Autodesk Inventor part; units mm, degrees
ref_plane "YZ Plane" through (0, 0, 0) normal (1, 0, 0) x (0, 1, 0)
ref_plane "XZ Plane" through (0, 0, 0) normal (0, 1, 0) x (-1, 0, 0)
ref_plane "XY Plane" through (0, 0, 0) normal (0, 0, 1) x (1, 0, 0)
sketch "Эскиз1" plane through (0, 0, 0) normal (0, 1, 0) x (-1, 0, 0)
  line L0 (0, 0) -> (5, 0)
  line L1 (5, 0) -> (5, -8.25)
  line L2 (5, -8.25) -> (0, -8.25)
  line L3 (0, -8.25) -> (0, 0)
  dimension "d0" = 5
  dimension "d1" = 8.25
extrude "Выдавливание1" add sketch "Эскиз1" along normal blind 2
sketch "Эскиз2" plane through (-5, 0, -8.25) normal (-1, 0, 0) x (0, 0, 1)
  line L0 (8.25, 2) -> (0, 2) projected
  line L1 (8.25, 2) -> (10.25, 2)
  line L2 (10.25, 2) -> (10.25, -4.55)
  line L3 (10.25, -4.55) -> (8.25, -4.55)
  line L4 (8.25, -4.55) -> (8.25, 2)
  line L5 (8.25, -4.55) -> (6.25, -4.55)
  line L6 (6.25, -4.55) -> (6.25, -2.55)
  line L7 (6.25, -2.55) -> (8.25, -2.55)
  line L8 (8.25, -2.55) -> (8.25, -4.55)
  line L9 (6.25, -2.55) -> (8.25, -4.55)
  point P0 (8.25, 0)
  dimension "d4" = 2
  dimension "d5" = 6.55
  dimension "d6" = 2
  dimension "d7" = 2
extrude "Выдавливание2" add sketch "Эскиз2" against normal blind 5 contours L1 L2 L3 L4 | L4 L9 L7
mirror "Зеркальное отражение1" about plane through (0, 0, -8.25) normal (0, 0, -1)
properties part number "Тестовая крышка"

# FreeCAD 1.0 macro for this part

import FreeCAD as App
import Part
import Sketcher


def add_polygon(sketch, points):
    """Adds a closed chain of lines whose ends are joined by coincident constraints."""
    first, n = sketch.GeometryCount, len(points)
    for a, b in zip(points, points[1:] + points[:1]):
        sketch.addGeometry(Part.LineSegment(App.Vector(*a, 0), App.Vector(*b, 0)), False)
    for i in range(n):
        sketch.addConstraint(Sketcher.Constraint("Coincident", first + i, 2, first + (i + 1) % n, 1))

doc = App.newDocument("Part")
body = doc.addObject("PartDesign::Body", "Body")

# Sketch on XZ plane
sketch1 = body.newObject("Sketcher::SketchObject", "Sketch")
sketch1.AttachmentSupport = (doc.getObject("XZ_Plane"), [""])
sketch1.MapMode = "FlatFace"
add_polygon(sketch1, [(-5, 0), (0, 0), (0, -8.25), (-5, -8.25)])  # lines 0-3
sketch1.addConstraint(Sketcher.Constraint("Horizontal", 0))
sketch1.addConstraint(Sketcher.Constraint("Vertical", 1))
sketch1.addConstraint(Sketcher.Constraint("Horizontal", 2))
sketch1.addConstraint(Sketcher.Constraint("Vertical", 3))
sketch1.addConstraint(Sketcher.Constraint("Coincident", 0, 2, -1, 1))
sketch1.addConstraint(Sketcher.Constraint("DistanceX", 0, 1, 0, 2, 5.0))
sketch1.addConstraint(Sketcher.Constraint("DistanceY", 1, 2, 1, 1, 8.25))
pad1 = body.newObject("PartDesign::Pad", "Pad")
pad1.Profile = sketch1
pad1.Length = 2
pad1.Reversed = True

# Sketch on YZ plane
sketch2 = body.newObject("Sketcher::SketchObject", "Sketch001")
sketch2.AttachmentSupport = (doc.getObject("YZ_Plane"), [""])
sketch2.MapMode = "FlatFace"
sketch2.AttachmentOffset = App.Placement(App.Vector(0, 0, -5), App.Rotation())
add_polygon(sketch2, [(2, 2), (2, 0), (-2.55, 0), (-2.55, -2), (-4.55, 0), (-4.55, 2)])  # lines 0-5
sketch2.addConstraint(Sketcher.Constraint("Vertical", 0))
sketch2.addConstraint(Sketcher.Constraint("Horizontal", 1))
sketch2.addConstraint(Sketcher.Constraint("Vertical", 2))
sketch2.addConstraint(Sketcher.Constraint("Vertical", 4))
sketch2.addConstraint(Sketcher.Constraint("Horizontal", 5))
sketch2.addConstraint(Sketcher.Constraint("PointOnObject", 0, 2, -1))
sketch2.addConstraint(Sketcher.Constraint("PointOnObject", 3, 2, -1))
sketch2.addConstraint(Sketcher.Constraint("Equal", 0, 2))
sketch2.addConstraint(Sketcher.Constraint("DistanceY", 0, 2, 0, 1, 2.0))
sketch2.addConstraint(Sketcher.Constraint("DistanceX", -1, 1, 0, 2, 2.0))
sketch2.addConstraint(Sketcher.Constraint("DistanceX", 3, 2, 1, 2, 2.0))
sketch2.addConstraint(Sketcher.Constraint("DistanceX", 5, 1, 5, 2, 6.55))
pad2 = body.newObject("PartDesign::Pad", "Pad001")
pad2.Profile = sketch2
pad2.Length = 5
doc.recompute()

datumplane = body.newObject("PartDesign::Plane", "DatumPlane")
datumplane.AttachmentSupport = (doc.getObject("XY_Plane"), [""])
datumplane.MapMode = "FlatFace"
datumplane.AttachmentOffset = App.Placement(App.Vector(0, 0, -8.25), App.Rotation())
mirrored = body.newObject("PartDesign::Mirrored", "Mirrored")
mirrored.TransformMode = "Transform body"
mirrored.MirrorPlane = (datumplane, [""])
body.Tip = mirrored

doc.recompute()
